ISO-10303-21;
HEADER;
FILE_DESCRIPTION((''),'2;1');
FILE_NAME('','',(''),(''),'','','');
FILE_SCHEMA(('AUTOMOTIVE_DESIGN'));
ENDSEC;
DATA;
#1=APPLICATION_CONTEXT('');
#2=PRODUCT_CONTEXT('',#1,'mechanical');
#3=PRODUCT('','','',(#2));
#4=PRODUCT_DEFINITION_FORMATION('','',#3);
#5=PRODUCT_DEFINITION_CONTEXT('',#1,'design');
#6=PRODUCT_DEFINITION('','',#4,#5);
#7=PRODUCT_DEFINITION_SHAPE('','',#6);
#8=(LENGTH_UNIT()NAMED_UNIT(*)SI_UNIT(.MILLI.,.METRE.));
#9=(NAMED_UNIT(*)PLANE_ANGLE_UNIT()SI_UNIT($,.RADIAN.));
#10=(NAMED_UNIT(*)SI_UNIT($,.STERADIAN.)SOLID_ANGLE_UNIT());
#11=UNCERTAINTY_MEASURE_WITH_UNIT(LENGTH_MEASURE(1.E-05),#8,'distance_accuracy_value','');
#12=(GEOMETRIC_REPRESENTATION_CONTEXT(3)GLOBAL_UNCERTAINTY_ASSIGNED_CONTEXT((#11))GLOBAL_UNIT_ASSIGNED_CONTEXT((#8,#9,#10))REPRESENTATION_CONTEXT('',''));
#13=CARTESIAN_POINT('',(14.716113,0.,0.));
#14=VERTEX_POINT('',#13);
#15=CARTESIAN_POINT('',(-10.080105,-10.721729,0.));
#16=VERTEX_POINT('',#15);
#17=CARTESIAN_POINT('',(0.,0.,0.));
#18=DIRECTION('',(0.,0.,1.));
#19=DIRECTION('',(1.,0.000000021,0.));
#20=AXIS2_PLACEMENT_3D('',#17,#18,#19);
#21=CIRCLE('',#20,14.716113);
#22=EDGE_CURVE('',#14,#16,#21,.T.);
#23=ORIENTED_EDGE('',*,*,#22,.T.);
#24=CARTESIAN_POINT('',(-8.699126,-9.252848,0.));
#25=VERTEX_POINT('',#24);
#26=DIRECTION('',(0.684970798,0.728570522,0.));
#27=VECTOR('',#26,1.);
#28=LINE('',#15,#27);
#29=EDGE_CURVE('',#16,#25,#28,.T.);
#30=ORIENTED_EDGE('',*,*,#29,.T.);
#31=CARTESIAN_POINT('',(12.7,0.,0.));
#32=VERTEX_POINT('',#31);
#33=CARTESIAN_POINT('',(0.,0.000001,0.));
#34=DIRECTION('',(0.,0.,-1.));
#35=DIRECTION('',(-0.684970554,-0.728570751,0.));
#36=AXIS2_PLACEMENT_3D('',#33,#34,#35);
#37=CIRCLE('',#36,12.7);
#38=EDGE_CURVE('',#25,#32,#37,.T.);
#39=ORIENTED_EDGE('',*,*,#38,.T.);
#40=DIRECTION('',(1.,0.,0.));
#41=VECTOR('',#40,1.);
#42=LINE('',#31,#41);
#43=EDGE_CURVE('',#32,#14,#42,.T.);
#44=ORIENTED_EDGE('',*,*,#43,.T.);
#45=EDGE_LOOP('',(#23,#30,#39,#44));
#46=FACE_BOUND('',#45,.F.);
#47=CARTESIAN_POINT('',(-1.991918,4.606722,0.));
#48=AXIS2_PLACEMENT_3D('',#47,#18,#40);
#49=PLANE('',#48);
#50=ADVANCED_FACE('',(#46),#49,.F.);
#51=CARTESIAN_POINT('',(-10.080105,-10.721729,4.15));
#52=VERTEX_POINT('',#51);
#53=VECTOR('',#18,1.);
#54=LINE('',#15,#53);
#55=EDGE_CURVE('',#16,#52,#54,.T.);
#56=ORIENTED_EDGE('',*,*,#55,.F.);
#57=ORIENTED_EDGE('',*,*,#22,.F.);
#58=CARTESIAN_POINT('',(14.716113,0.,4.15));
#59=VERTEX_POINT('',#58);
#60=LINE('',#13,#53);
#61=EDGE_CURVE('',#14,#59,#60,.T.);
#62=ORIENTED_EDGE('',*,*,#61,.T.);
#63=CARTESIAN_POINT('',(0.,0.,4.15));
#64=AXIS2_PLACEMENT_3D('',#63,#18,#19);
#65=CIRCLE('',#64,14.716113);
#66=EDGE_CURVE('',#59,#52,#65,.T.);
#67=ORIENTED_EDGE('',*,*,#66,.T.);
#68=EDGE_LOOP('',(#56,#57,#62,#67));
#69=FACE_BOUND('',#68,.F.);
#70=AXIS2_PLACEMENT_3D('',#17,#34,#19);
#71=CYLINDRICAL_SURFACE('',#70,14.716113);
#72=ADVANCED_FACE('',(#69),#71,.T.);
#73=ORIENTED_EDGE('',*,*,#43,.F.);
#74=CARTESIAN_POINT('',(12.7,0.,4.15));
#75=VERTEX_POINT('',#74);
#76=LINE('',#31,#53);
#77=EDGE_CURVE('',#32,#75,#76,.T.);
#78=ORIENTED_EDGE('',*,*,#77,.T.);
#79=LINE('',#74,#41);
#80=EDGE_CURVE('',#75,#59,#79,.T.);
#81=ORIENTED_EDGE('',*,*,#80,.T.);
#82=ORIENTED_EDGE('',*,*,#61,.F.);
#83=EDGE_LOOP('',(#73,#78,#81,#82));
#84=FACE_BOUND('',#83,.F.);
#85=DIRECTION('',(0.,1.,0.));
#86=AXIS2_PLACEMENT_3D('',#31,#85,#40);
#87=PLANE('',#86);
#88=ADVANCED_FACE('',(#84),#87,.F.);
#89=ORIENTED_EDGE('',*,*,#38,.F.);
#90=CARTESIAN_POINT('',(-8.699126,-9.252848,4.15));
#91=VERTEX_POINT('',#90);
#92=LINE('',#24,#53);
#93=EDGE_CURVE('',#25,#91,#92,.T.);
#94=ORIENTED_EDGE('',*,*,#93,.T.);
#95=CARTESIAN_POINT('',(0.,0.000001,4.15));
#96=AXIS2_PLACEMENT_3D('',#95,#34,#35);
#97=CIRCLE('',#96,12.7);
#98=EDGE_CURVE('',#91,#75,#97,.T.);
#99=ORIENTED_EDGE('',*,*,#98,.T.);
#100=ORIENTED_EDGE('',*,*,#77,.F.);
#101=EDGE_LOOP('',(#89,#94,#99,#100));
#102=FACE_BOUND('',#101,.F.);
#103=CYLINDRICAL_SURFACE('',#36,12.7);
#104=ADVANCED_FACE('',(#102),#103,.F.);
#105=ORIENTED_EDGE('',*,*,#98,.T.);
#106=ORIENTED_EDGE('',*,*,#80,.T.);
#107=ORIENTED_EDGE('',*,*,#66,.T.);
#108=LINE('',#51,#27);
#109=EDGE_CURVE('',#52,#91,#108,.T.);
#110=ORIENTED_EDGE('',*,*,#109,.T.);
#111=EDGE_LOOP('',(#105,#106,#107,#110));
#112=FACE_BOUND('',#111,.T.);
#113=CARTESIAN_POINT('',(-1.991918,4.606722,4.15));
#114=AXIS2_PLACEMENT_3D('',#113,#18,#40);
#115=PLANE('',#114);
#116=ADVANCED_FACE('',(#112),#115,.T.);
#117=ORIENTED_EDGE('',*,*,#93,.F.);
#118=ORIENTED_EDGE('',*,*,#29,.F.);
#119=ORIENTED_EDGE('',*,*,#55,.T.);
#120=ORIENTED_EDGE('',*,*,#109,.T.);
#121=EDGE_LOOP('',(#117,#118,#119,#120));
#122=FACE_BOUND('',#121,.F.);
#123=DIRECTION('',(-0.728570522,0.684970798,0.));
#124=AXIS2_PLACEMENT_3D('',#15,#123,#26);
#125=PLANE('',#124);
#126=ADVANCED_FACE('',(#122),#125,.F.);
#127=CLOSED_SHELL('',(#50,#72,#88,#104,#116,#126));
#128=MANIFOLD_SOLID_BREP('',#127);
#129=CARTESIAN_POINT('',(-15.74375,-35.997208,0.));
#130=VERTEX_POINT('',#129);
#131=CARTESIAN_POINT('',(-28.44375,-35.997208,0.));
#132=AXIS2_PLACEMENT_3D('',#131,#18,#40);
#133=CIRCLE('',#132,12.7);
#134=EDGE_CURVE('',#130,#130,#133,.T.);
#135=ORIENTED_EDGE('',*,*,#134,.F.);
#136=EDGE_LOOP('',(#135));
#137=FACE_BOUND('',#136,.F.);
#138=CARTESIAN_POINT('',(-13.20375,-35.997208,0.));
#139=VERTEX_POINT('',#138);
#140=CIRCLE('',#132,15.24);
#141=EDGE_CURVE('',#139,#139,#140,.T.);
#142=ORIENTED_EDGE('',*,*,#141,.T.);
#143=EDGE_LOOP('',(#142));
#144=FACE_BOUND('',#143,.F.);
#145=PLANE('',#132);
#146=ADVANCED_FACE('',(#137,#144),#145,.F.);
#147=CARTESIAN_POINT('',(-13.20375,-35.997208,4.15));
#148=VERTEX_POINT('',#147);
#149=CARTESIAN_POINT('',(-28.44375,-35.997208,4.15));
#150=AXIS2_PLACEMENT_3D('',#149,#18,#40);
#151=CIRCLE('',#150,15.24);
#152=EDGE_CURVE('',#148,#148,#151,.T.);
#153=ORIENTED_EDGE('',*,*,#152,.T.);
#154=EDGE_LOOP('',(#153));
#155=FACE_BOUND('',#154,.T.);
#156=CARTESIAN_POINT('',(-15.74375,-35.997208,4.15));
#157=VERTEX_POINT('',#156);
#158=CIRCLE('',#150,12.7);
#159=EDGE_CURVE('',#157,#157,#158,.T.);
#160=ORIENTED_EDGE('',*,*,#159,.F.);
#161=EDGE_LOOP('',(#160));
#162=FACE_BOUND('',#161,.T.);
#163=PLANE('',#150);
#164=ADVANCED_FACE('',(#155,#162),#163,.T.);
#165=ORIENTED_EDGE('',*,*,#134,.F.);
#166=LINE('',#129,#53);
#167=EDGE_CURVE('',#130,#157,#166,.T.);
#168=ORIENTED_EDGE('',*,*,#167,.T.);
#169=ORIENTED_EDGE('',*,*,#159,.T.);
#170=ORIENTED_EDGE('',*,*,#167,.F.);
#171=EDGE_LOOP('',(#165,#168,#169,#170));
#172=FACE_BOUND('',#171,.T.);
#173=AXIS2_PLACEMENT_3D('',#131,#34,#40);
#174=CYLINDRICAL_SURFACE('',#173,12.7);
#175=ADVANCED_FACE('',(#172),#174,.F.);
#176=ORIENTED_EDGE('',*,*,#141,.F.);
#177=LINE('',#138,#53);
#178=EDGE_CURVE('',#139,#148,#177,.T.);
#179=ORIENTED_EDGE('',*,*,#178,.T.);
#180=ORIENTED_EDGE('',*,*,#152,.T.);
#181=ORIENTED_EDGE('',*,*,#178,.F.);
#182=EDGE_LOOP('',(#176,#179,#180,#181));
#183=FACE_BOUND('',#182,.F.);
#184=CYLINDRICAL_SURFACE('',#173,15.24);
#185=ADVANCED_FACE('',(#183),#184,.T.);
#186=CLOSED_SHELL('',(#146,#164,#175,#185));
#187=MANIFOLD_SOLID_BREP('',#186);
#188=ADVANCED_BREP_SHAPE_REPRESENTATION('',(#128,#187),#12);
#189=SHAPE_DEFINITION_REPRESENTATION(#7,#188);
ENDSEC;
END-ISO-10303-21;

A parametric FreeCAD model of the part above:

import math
import FreeCAD as App
import Part
import Sketcher
from FreeCAD import Vector
Q = App.Units.Quantity

doc = App.newDocument("Part")
body = doc.addObject("PartDesign::Body", "Body")
body.AllowCompound = True

# Sketch on XY plane
sketch1 = doc.addObject("Sketcher::SketchObject", "Sketch")
body.addObject(sketch1)
sketch1.AttachmentSupport = (doc.XY_Plane, [""])
sketch1.MapMode = "FlatFace"
sketch1.addGeometry(Part.ArcOfCircle(Part.Circle(Vector(0, 0, 0), Vector(0, 0, 1), 12.7), math.radians(0), math.radians(227)), False)
sketch1.addGeometry(Part.LineSegment(Vector(12.7, 0, 0), Vector(14.7, 0, 0)), False)
sketch1.addGeometry(Part.ArcOfCircle(Part.Circle(Vector(0, 0, 0), Vector(0, 0, 1), 14.7), math.radians(0), math.radians(227)), False)
sketch1.addGeometry(Part.LineSegment(Vector(-10.1, -10.7, 0), Vector(-8.7, -9.3, 0)), False)
sketch1.addGeometry(Part.Circle(Vector(-28.4, -36, 0), Vector(0, 0, 1), 15.2), False)
sketch1.addGeometry(Part.Circle(Vector(-28.4, -36, 0), Vector(0, 0, 1), 12.7), False)
sketch1.addConstraint(Sketcher.Constraint("Coincident", 0, 1, 1, 1))
sketch1.addConstraint(Sketcher.Constraint("Coincident", 1, 2, 2, 1))
sketch1.addConstraint(Sketcher.Constraint("Coincident", 2, 2, 3, 1))
sketch1.addConstraint(Sketcher.Constraint("Coincident", 3, 2, 0, 2))
sketch1.addConstraint(Sketcher.Constraint("Horizontal", 1))
sketch1.addConstraint(Sketcher.Constraint("Coincident", 0, 3, -1, 1))
sketch1.addConstraint(Sketcher.Constraint("Coincident", 2, 3, -1, 1))
sketch1.addConstraint(Sketcher.Constraint("Coincident", 5, 3, 4, 3))
sketch1.addConstraint(Sketcher.Constraint("Equal", 0, 5))
sketch1.addConstraint(Sketcher.Constraint("PointOnObject", 0, 1, -1))
sketch1.addConstraint(Sketcher.Constraint("Diameter", 5, Q("1 in")))
sketch1.addConstraint(Sketcher.Constraint("Diameter", 4, Q("1.2 in")))
sketch1.addConstraint(Sketcher.Constraint("Radius", 2, Q("14.716113 mm")))
sketch1.addConstraint(Sketcher.Constraint("DistanceX", 4, 3, -1, 1, Q("28.44375 mm")))
sketch1.addConstraint(Sketcher.Constraint("DistanceY", 2, 2, -1, 1, Q("10.721729 mm")))
sketch1.addConstraint(Sketcher.Constraint("DistanceY", 4, 3, 0, 3, Q("35.997209 mm")))
sketch1.addConstraint(Sketcher.Constraint("DistanceX", 2, 2, 3, 2, Q("1.380979 mm")))
pad1 = doc.addObject("PartDesign::Pad", "Pad")
body.addObject(pad1)
pad1.Profile = sketch1
pad1.Length = 4.15

doc.recompute()
